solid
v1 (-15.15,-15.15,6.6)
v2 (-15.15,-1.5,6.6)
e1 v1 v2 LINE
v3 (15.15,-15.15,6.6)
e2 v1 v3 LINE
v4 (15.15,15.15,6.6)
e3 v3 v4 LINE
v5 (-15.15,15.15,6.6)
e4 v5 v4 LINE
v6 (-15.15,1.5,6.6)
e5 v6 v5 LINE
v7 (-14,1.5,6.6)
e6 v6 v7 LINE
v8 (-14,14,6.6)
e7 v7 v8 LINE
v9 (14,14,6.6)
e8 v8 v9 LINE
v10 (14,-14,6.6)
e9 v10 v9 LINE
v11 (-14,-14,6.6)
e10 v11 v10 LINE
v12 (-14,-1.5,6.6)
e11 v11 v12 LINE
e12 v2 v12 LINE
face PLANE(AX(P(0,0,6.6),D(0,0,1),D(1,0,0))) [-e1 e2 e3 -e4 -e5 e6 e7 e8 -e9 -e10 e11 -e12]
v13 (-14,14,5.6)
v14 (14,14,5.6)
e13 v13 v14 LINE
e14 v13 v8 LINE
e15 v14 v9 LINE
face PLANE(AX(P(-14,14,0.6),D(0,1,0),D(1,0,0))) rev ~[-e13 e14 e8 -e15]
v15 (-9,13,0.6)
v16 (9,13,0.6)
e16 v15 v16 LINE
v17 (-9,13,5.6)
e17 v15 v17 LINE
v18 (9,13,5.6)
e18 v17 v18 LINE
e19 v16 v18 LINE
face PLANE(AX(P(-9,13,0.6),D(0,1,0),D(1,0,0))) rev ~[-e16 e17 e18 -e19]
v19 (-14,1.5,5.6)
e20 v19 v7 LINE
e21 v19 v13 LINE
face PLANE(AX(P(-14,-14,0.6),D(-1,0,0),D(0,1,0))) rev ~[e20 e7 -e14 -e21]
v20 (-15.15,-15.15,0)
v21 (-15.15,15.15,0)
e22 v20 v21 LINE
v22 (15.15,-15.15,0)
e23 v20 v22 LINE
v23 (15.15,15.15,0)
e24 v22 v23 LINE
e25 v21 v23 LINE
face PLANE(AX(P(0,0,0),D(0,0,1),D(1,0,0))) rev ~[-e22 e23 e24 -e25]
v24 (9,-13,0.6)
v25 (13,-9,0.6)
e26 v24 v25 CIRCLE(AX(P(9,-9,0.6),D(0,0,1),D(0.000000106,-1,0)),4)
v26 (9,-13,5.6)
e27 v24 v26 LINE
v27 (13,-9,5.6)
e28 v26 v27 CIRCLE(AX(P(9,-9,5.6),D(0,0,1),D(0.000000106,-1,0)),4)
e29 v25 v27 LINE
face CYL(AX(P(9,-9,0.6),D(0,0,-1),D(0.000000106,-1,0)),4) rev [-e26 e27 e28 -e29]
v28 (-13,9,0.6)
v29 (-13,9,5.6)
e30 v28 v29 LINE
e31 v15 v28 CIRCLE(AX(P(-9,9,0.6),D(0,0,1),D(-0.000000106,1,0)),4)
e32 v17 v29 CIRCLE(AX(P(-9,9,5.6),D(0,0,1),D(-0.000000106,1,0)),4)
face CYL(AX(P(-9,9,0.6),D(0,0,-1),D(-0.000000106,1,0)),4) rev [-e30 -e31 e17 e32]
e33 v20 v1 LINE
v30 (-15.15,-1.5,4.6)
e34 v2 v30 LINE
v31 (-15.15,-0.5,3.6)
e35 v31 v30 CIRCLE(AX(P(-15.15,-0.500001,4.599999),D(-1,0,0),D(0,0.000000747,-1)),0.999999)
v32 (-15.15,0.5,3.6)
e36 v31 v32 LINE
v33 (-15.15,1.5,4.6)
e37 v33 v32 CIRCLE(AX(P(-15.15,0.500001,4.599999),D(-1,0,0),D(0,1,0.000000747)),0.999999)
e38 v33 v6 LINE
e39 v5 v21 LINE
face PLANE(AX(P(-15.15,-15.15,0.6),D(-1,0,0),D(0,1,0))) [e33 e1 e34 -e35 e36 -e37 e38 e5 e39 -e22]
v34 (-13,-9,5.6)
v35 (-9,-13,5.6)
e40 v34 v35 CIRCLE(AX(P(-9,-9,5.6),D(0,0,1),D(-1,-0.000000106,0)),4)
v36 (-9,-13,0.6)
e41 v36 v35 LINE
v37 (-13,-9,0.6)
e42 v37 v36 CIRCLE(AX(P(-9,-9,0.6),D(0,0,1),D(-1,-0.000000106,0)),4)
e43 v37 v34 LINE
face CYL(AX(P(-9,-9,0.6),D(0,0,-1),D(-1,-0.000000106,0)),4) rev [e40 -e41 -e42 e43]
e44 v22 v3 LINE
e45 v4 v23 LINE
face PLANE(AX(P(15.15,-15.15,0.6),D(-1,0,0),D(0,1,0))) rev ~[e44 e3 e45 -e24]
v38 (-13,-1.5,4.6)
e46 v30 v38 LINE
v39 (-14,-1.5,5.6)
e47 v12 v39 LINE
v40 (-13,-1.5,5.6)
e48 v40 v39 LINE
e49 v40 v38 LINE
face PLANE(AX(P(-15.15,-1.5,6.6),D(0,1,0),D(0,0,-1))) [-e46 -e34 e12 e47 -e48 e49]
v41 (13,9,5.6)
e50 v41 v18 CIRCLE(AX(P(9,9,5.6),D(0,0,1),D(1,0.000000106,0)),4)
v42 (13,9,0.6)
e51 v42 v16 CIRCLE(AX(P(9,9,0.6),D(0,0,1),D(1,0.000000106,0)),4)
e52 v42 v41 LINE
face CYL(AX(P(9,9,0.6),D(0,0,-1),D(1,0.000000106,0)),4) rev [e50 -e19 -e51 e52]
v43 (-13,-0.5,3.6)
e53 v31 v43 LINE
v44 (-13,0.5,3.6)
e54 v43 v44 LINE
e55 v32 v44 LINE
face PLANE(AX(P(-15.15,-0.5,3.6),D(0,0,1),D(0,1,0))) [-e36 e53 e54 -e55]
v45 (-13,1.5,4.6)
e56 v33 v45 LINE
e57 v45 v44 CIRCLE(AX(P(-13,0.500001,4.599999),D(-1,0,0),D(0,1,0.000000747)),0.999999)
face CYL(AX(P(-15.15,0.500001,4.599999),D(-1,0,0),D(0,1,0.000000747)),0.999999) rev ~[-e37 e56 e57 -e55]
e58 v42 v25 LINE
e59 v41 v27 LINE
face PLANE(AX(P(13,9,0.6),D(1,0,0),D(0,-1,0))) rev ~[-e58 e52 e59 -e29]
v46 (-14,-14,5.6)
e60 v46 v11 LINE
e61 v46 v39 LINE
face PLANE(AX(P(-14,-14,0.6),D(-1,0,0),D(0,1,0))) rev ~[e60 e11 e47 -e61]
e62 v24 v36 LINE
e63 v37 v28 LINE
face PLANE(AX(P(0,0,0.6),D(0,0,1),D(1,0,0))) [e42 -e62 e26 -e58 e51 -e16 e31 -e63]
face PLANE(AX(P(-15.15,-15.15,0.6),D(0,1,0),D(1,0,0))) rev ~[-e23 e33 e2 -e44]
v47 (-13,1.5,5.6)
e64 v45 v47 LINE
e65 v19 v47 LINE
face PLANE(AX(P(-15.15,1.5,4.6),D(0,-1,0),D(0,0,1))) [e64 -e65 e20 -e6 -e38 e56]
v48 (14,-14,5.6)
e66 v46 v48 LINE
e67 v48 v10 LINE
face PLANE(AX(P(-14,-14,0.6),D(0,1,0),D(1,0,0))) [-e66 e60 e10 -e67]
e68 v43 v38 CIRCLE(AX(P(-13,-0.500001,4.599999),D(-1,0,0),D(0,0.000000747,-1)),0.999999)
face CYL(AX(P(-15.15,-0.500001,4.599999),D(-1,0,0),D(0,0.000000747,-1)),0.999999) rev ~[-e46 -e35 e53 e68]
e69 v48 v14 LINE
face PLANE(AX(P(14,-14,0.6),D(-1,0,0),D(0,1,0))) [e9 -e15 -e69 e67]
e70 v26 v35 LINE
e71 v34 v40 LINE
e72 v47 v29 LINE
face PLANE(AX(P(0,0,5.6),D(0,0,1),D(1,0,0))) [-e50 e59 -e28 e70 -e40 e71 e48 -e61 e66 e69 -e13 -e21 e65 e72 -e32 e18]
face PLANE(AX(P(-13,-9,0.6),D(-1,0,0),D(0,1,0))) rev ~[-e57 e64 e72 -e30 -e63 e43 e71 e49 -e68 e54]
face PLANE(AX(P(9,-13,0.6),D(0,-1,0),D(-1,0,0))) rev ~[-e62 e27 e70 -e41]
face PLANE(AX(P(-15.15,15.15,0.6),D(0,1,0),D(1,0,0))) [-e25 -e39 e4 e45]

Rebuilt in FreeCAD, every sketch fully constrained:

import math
import FreeCAD as App
import Part
import Sketcher
Q = App.Units.Quantity

doc = App.newDocument("Part")
body = doc.addObject("PartDesign::Body", "Body")

sketch1 = body.newObject("Sketcher::SketchObject", "Sketch")
sketch1.AttachmentSupport = (doc.getObject("XY_Plane"), [""])
sketch1.MapMode = "FlatFace"
sketch1.addGeometry([
    Part.LineSegment(App.Vector(-15, 15, 0), App.Vector(-15, -15, 0)),
    Part.LineSegment(App.Vector(-15, -15, 0), App.Vector(15, -15, 0)),
    Part.LineSegment(App.Vector(15, -15, 0), App.Vector(15, 15, 0)),
    Part.LineSegment(App.Vector(15, 15, 0), App.Vector(-15, 15, 0)),
], False)
sketch1.addConstraint([
    Sketcher.Constraint("Coincident", 0, 2, 1, 1),
    Sketcher.Constraint("Coincident", 1, 2, 2, 1),
    Sketcher.Constraint("Coincident", 2, 2, 3, 1),
    Sketcher.Constraint("Coincident", 3, 2, 0, 1),
    Sketcher.Constraint("Vertical", 0),
    Sketcher.Constraint("Horizontal", 1),
    Sketcher.Constraint("Vertical", 2),
    Sketcher.Constraint("Horizontal", 3),
    Sketcher.Constraint("Symmetric", 0, 2, 2, 2, -1, 1),
    Sketcher.Constraint("Equal", 3, 0),
    Sketcher.Constraint("DistanceX", 1, 1, 1, 2, Q("30.3 mm")),
])
pad1 = body.newObject("PartDesign::Pad", "Pad")
pad1.Profile = sketch1
pad1.Length = 0.6

sketch2 = body.newObject("Sketcher::SketchObject", "Sketch001")
sketch2.AttachmentSupport = (doc.getObject("XY_Plane"), [""])
sketch2.MapMode = "FlatFace"
sketch2.AttachmentOffset = App.Placement(App.Vector(0, 0, 0.6), App.Rotation())
sketch2.addGeometry([
    Part.LineSegment(App.Vector(-14, 14, 0), App.Vector(-14, -14, 0)),
    Part.LineSegment(App.Vector(-14, -14, 0), App.Vector(14, -14, 0)),
    Part.LineSegment(App.Vector(14, -14, 0), App.Vector(14, 14, 0)),
    Part.LineSegment(App.Vector(14, 14, 0), App.Vector(-14, 14, 0)),
    Part.ArcOfCircle(Part.Circle(App.Vector(-9, 9, 0), App.Vector(0, 0, 1), 4), math.radians(90), math.radians(180)),
    Part.LineSegment(App.Vector(-9, 13, 0), App.Vector(9, 13, 0)),
    Part.ArcOfCircle(Part.Circle(App.Vector(9, 9, 0), App.Vector(0, 0, 1), 4), math.radians(0), math.radians(90)),
    Part.LineSegment(App.Vector(13, 9, 0), App.Vector(13, -9, 0)),
    Part.ArcOfCircle(Part.Circle(App.Vector(9, -9, 0), App.Vector(0, 0, 1), 4), math.radians(-90), math.radians(0)),
    Part.LineSegment(App.Vector(9, -13, 0), App.Vector(-9, -13, 0)),
    Part.ArcOfCircle(Part.Circle(App.Vector(-9, -9, 0), App.Vector(0, 0, 1), 4), math.radians(-180), math.radians(-90)),
    Part.LineSegment(App.Vector(-13, -9, 0), App.Vector(-13, 9, 0)),
], False)
sketch2.addConstraint([
    Sketcher.Constraint("Coincident", 0, 2, 1, 1),
    Sketcher.Constraint("Coincident", 1, 2, 2, 1),
    Sketcher.Constraint("Coincident", 2, 2, 3, 1),
    Sketcher.Constraint("Coincident", 3, 2, 0, 1),
    Sketcher.Constraint("Tangent", 4, 1, 5, 1),
    Sketcher.Constraint("Tangent", 5, 2, 6, 2),
    Sketcher.Constraint("Tangent", 6, 1, 7, 1),
    Sketcher.Constraint("Tangent", 7, 2, 8, 2),
    Sketcher.Constraint("Tangent", 8, 1, 9, 1),
    Sketcher.Constraint("Tangent", 9, 2, 10, 2),
    Sketcher.Constraint("Tangent", 10, 1, 11, 1),
    Sketcher.Constraint("Tangent", 11, 2, 4, 2),
    Sketcher.Constraint("Vertical", 0),
    Sketcher.Constraint("Horizontal", 1),
    Sketcher.Constraint("Vertical", 2),
    Sketcher.Constraint("Horizontal", 3),
    Sketcher.Constraint("Horizontal", 5),
    Sketcher.Constraint("Vertical", 7),
    Sketcher.Constraint("Horizontal", 9),
    Sketcher.Constraint("Vertical", 11),
    Sketcher.Constraint("Equal", 4, 6),
    Sketcher.Constraint("Equal", 6, 8),
    Sketcher.Constraint("Equal", 8, 10),
    Sketcher.Constraint("Symmetric", 4, 3, 8, 3, -1, 1),
    Sketcher.Constraint("Symmetric", 0, 2, 2, 2, -1, 1),
    Sketcher.Constraint("Equal", 3, 0),
    Sketcher.Constraint("Equal", 9, 7),
    Sketcher.Constraint("Radius", 4, Q("4 mm")),
    Sketcher.Constraint("DistanceX", 1, 1, 1, 2, Q("28 mm")),
    Sketcher.Constraint("DistanceX", 5, 1, 5, 2, Q("18 mm")),
])
pad2 = body.newObject("PartDesign::Pad", "Pad001")
pad2.Profile = sketch2
pad2.Length = 5

sketch3 = body.newObject("Sketcher::SketchObject", "Sketch002")
sketch3.AttachmentSupport = (doc.getObject("XY_Plane"), [""])
sketch3.MapMode = "FlatFace"
sketch3.AttachmentOffset = App.Placement(App.Vector(0, 0, 0.6), App.Rotation())
sketch3.addGeometry([
    Part.LineSegment(App.Vector(-15, 15, 0), App.Vector(-15, -15, 0)),
    Part.LineSegment(App.Vector(-15, -15, 0), App.Vector(15, -15, 0)),
    Part.LineSegment(App.Vector(15, -15, 0), App.Vector(15, 15, 0)),
    Part.LineSegment(App.Vector(15, 15, 0), App.Vector(-15, 15, 0)),
    Part.LineSegment(App.Vector(14, -14, 0), App.Vector(-14, -14, 0)),
    Part.LineSegment(App.Vector(-14, -14, 0), App.Vector(-14, 14, 0)),
    Part.LineSegment(App.Vector(-14, 14, 0), App.Vector(14, 14, 0)),
    Part.LineSegment(App.Vector(14, 14, 0), App.Vector(14, -14, 0)),
], False)
sketch3.addConstraint([
    Sketcher.Constraint("Coincident", 0, 2, 1, 1),
    Sketcher.Constraint("Coincident", 1, 2, 2, 1),
    Sketcher.Constraint("Coincident", 2, 2, 3, 1),
    Sketcher.Constraint("Coincident", 3, 2, 0, 1),
    Sketcher.Constraint("Coincident", 4, 2, 5, 1),
    Sketcher.Constraint("Coincident", 5, 2, 6, 1),
    Sketcher.Constraint("Coincident", 6, 2, 7, 1),
    Sketcher.Constraint("Coincident", 7, 2, 4, 1),
    Sketcher.Constraint("Vertical", 0),
    Sketcher.Constraint("Horizontal", 1),
    Sketcher.Constraint("Vertical", 2),
    Sketcher.Constraint("Horizontal", 3),
    Sketcher.Constraint("Horizontal", 4),
    Sketcher.Constraint("Vertical", 5),
    Sketcher.Constraint("Horizontal", 6),
    Sketcher.Constraint("Vertical", 7),
    Sketcher.Constraint("Symmetric", 0, 2, 2, 2, -1, 1),
    Sketcher.Constraint("Symmetric", 4, 2, 6, 2, -1, 1),
    Sketcher.Constraint("Equal", 3, 0),
    Sketcher.Constraint("Equal", 6, 5),
    Sketcher.Constraint("DistanceX", 4, 2, 4, 1, Q("28 mm")),
    Sketcher.Constraint("DistanceX", 1, 1, 1, 2, Q("30.3 mm")),
])
pad3 = body.newObject("PartDesign::Pad", "Pad002")
pad3.Profile = sketch3
pad3.Length = 6

sketch4 = body.newObject("Sketcher::SketchObject", "Sketch003")
sketch4.AttachmentSupport = (doc.getObject("YZ_Plane"), [""])
sketch4.MapMode = "FlatFace"
sketch4.AttachmentOffset = App.Placement(App.Vector(0, 0, -15.15), App.Rotation())
sketch4.addGeometry([
    Part.LineSegment(App.Vector(-1.5, 6.6, 0), App.Vector(1.5, 6.6, 0)),
    Part.LineSegment(App.Vector(1.5, 6.6, 0), App.Vector(1.5, 4.6, 0)),
    Part.ArcOfCircle(Part.Circle(App.Vector(0.5, 4.6, 0), App.Vector(0, 0, 1), 1), math.radians(-90), math.radians(0)),
    Part.LineSegment(App.Vector(0.5, 3.6, 0), App.Vector(-0.5, 3.6, 0)),
    Part.ArcOfCircle(Part.Circle(App.Vector(-0.5, 4.6, 0), App.Vector(0, 0, 1), 1), math.radians(180), math.radians(270)),
    Part.LineSegment(App.Vector(-1.5, 4.6, 0), App.Vector(-1.5, 6.6, 0)),
], False)
sketch4.addConstraint([
    Sketcher.Constraint("Coincident", 0, 2, 1, 1),
    Sketcher.Constraint("Tangent", 1, 2, 2, 2),
    Sketcher.Constraint("Tangent", 2, 1, 3, 1),
    Sketcher.Constraint("Tangent", 3, 2, 4, 2),
    Sketcher.Constraint("Tangent", 4, 1, 5, 1),
    Sketcher.Constraint("Coincident", 5, 2, 0, 1),
    Sketcher.Constraint("Horizontal", 0),
    Sketcher.Constraint("Vertical", 1),
    Sketcher.Constraint("Horizontal", 3),
    Sketcher.Constraint("Vertical", 5),
    Sketcher.Constraint("Equal", 2, 4),
    Sketcher.Constraint("Radius", 2, Q("0.999999 mm")),
    Sketcher.Constraint("DistanceX", 0, 1, 0, 2, Q("3 mm")),
    Sketcher.Constraint("DistanceY", 1, 2, 1, 1, Q("2 mm")),
    Sketcher.Constraint("DistanceX", -1, 1, 2, 3, Q("0.500001 mm")),
    Sketcher.Constraint("DistanceY", -1, 1, 2, 3, Q("4.599999 mm")),
])
pocket1 = body.newObject("PartDesign::Pocket", "Pocket")
pocket1.Profile = sketch4
pocket1.Length = 2.15
pocket1.Reversed = True

doc.recompute()
